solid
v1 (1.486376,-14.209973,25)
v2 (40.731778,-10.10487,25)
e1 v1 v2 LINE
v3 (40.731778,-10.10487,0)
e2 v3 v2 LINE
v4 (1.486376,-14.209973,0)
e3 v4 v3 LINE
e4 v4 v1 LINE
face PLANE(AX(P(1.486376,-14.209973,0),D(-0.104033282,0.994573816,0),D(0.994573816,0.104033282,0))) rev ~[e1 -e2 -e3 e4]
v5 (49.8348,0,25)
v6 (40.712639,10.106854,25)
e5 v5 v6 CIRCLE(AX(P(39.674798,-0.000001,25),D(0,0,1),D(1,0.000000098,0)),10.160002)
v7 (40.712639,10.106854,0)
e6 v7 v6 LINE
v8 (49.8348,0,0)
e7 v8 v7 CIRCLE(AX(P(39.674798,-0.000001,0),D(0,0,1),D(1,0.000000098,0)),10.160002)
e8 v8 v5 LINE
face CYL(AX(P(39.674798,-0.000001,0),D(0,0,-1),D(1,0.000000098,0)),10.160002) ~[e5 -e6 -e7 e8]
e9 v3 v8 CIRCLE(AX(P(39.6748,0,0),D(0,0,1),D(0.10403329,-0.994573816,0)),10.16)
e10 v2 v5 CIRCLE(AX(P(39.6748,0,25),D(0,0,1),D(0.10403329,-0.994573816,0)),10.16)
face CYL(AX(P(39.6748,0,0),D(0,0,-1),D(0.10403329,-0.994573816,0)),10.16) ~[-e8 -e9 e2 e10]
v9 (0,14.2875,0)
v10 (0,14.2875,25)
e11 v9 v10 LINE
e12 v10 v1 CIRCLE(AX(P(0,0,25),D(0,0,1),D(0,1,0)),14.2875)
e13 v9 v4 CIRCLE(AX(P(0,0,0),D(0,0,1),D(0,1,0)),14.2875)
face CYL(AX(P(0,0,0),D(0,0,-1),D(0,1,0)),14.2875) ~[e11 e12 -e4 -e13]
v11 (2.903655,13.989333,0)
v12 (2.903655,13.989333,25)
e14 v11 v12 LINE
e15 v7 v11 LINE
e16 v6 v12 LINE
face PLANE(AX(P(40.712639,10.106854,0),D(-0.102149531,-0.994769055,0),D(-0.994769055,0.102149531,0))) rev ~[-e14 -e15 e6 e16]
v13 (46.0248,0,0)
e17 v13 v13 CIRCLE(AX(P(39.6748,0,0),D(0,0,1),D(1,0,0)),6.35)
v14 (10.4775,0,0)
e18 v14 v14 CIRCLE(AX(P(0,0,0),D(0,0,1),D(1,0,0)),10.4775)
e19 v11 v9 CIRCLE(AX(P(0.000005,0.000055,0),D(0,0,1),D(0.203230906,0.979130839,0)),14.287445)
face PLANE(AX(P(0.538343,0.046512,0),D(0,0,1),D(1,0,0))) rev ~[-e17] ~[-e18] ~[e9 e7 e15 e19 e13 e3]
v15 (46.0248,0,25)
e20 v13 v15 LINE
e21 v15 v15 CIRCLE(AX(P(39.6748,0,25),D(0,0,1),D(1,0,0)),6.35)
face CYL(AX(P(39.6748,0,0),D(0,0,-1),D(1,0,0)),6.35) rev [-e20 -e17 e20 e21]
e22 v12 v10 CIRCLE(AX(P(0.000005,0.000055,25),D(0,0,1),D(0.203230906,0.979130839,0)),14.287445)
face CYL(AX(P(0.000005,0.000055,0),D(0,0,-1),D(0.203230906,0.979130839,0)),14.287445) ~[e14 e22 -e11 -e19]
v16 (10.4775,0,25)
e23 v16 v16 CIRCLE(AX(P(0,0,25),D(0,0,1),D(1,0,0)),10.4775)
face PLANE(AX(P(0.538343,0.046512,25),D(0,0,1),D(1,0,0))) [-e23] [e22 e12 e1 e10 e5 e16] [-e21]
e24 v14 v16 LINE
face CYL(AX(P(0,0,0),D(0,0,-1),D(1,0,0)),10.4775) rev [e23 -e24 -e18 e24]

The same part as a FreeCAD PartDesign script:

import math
import FreeCAD as App
import Part
import Sketcher
Q = App.Units.Quantity

doc = App.newDocument("Part")
body = doc.addObject("PartDesign::Body", "Body")

sketch1 = body.newObject("Sketcher::SketchObject", "Sketch")
sketch1.AttachmentSupport = (doc.getObject("XY_Plane"), [""])
sketch1.MapMode = "FlatFace"
sketch1.addGeometry(Part.ArcOfCircle(Part.Circle(App.Vector(0.000005, 0.000055, 0), App.Vector(0, 0, 1), 14.287445), math.radians(78.274042), math.radians(90.000018)), False)
sketch1.addGeometry(Part.ArcOfCircle(Part.Circle(App.Vector(0, 0, 0), App.Vector(0, 0, 1), 14.2875), math.radians(90), math.radians(275.971475)), False)
sketch1.addGeometry(Part.LineSegment(App.Vector(1.486376, -14.209973, 0), App.Vector(40.731778, -10.10487, 0)), False)
sketch1.addGeometry(Part.ArcOfCircle(Part.Circle(App.Vector(39.6748, 0, 0), App.Vector(0, 0, 1), 10.16), math.radians(-84.028527), math.radians(-0.000001)), False)
sketch1.addGeometry(Part.ArcOfCircle(Part.Circle(App.Vector(39.674798, -0.000001, 0), App.Vector(0, 0, 1), 10.160002), math.radians(0.000006), math.radians(84.13703)), False)
sketch1.addGeometry(Part.LineSegment(App.Vector(40.712639, 10.106854, 0), App.Vector(2.903655, 13.989333, 0)), False)
sketch1.addGeometry(Part.Circle(App.Vector(0, 0, 0), App.Vector(0, 0, 1), 10.4775), False)
sketch1.addGeometry(Part.Circle(App.Vector(39.6748, 0, 0), App.Vector(0, 0, 1), 6.35), False)
sketch1.addConstraint(Sketcher.Constraint("Tangent", 0, 2, 1, 1))
sketch1.addConstraint(Sketcher.Constraint("Tangent", 1, 2, 2, 1))
sketch1.addConstraint(Sketcher.Constraint("Tangent", 2, 2, 3, 1))
sketch1.addConstraint(Sketcher.Constraint("Tangent", 3, 2, 4, 1))
sketch1.addConstraint(Sketcher.Constraint("Tangent", 4, 2, 5, 1))
sketch1.addConstraint(Sketcher.Constraint("Coincident", 5, 2, 0, 1))
sketch1.addConstraint(Sketcher.Constraint("Coincident", 1, 3, -1, 1))
sketch1.addConstraint(Sketcher.Constraint("Coincident", 6, 3, -1, 1))
sketch1.addConstraint(Sketcher.Constraint("Coincident", 7, 3, 3, 3))
sketch1.addConstraint(Sketcher.Constraint("Equal", 3, 4))
sketch1.addConstraint(Sketcher.Constraint("PointOnObject", 3, 3, -1))
sketch1.addConstraint(Sketcher.Constraint("PointOnObject", 0, 2, -2))
sketch1.addConstraint(Sketcher.Constraint("PointOnObject", 3, 2, -1))
sketch1.addConstraint(Sketcher.Constraint("Diameter", 7, Q("0.5 in")))
sketch1.addConstraint(Sketcher.Constraint("Radius", 3, Q("0.4 in")))
sketch1.addConstraint(Sketcher.Constraint("Diameter", 6, Q("0.825 in")))
sketch1.addConstraint(Sketcher.Constraint("Radius", 1, Q("0.5625 in")))
sketch1.addConstraint(Sketcher.Constraint("DistanceX", -1, 1, 3, 3, Q("1.562 in")))
sketch1.addConstraint(Sketcher.Constraint("Radius", 0, 14.287445))
sketch1.addConstraint(Sketcher.Constraint("Distance", 5, 38.007801))
pad1 = body.newObject("PartDesign::Pad", "Pad")
pad1.Profile = sketch1
pad1.Length = 25

doc.recompute()
